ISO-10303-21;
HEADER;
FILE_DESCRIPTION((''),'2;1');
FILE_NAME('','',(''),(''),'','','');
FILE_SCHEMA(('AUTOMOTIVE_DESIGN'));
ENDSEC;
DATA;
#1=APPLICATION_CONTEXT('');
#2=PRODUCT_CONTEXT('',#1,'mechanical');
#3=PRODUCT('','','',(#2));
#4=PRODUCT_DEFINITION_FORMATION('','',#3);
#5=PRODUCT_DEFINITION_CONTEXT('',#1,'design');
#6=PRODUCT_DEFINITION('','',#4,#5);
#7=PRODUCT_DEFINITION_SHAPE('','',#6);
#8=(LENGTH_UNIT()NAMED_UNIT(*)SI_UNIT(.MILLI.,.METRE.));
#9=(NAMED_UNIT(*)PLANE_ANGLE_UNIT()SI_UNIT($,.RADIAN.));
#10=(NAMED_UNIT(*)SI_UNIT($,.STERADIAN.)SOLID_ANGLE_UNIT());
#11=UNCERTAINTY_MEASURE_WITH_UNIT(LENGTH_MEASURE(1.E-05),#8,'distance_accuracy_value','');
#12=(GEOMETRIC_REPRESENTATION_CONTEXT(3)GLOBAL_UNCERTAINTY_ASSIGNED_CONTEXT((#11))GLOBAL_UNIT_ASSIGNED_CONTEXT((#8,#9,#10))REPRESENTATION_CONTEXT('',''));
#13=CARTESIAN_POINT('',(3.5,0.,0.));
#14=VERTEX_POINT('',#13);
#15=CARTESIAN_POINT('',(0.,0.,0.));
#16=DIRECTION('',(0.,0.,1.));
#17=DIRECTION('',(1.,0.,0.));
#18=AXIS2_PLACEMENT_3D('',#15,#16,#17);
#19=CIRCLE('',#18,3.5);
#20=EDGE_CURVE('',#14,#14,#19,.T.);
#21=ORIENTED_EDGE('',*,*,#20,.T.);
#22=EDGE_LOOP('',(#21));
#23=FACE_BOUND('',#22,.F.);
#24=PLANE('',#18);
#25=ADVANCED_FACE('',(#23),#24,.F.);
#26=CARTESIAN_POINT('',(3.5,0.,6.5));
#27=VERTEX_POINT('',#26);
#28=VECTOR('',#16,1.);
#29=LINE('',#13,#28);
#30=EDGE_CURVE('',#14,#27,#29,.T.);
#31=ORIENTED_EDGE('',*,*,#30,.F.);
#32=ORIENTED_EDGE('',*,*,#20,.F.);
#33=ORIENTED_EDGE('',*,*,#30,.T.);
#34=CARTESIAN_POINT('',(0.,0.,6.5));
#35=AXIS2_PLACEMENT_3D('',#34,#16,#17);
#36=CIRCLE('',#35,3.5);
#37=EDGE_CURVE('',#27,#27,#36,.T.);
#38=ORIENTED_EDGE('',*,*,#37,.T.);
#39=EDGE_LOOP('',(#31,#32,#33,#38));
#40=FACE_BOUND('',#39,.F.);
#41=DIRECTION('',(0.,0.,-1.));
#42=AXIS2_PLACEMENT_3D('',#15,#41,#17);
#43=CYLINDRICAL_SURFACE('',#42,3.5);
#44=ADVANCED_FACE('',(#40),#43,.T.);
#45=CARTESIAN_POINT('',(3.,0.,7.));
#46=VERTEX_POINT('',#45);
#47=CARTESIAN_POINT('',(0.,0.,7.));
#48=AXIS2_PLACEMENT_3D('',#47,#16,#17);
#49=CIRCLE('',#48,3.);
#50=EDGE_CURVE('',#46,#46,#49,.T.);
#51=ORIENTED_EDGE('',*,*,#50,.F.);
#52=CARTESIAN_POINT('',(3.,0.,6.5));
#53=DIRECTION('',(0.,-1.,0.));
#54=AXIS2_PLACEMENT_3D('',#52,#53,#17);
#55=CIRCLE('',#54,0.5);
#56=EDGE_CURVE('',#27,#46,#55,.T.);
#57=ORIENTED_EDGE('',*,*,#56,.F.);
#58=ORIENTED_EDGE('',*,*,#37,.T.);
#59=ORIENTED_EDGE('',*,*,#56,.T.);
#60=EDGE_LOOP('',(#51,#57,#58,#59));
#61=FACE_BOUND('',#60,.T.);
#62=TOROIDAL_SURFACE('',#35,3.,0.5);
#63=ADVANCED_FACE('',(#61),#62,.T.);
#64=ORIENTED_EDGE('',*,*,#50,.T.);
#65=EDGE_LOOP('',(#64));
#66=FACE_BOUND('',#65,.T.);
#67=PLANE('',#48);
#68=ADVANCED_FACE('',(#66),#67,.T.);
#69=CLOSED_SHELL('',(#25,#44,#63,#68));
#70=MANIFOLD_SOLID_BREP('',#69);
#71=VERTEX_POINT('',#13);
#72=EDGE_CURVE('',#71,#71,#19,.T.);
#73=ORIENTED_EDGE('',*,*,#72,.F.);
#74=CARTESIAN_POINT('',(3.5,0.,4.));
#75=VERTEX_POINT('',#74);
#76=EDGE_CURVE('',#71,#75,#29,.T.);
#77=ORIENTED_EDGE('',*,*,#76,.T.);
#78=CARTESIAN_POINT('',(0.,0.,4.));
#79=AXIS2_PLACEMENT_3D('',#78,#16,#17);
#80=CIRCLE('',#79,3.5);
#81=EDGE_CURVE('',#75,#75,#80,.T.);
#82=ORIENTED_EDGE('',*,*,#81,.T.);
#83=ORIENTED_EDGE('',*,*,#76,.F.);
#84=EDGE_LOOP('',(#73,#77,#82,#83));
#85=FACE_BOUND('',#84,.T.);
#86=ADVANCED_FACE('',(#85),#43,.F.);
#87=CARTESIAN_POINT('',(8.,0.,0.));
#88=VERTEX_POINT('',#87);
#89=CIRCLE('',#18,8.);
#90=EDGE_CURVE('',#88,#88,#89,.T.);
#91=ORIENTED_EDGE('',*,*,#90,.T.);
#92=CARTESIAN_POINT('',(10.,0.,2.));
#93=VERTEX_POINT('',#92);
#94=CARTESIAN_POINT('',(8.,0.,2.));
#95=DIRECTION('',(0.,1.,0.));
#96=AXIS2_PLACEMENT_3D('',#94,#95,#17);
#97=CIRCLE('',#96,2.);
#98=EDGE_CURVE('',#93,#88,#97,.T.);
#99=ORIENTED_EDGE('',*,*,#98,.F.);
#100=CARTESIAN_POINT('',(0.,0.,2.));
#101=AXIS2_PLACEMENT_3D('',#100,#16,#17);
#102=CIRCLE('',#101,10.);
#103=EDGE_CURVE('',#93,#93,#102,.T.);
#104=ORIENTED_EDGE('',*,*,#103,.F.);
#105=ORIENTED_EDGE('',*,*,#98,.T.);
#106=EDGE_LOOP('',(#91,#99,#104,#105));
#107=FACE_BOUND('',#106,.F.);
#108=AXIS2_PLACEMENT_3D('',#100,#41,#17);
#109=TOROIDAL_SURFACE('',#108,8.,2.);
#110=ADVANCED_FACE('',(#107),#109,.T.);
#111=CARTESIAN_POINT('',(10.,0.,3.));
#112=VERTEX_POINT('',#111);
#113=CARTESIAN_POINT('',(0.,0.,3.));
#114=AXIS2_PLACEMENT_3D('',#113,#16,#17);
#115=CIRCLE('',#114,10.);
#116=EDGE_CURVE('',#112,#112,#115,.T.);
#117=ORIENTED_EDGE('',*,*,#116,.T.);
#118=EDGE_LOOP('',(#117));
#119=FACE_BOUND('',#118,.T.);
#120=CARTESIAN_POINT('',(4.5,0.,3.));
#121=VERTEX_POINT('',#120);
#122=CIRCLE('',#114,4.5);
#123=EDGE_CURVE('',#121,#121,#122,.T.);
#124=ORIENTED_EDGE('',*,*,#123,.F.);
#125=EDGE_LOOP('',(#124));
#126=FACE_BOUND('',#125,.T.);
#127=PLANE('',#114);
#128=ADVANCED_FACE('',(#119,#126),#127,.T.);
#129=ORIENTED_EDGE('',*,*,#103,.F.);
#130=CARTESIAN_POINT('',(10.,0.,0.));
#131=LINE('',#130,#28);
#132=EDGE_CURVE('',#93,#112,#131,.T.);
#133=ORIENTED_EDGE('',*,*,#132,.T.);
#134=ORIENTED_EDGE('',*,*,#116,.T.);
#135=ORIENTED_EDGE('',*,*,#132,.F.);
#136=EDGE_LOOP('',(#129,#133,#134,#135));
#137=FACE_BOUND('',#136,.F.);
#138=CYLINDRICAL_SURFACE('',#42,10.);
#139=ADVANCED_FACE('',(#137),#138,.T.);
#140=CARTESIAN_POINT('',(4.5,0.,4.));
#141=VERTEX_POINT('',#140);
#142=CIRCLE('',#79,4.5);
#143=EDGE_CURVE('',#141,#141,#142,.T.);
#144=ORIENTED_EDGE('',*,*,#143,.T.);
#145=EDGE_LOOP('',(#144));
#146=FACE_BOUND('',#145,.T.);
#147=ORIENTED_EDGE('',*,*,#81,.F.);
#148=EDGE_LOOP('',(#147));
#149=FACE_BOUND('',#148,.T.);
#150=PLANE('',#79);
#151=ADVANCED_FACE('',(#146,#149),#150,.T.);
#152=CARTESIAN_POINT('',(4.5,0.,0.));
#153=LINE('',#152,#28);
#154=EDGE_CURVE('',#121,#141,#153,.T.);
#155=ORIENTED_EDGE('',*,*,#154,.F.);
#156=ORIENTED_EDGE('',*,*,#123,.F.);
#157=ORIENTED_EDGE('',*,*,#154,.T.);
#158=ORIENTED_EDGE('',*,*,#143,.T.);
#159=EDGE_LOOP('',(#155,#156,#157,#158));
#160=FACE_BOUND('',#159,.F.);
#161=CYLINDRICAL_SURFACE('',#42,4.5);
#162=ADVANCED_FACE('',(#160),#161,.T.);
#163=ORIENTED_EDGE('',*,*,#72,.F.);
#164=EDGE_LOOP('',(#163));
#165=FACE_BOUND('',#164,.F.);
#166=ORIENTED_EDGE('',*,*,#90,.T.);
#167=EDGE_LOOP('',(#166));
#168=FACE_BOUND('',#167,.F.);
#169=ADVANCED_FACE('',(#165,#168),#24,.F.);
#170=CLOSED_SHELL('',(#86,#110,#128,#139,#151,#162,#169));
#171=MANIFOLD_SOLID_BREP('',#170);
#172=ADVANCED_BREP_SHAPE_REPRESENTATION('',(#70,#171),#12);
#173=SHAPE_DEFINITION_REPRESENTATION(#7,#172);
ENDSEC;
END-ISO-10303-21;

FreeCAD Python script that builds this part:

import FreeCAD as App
import Part
import Sketcher

V = App.Vector


def edges_at(feature, points):
    """Names of the edges that pass closest to the given points."""
    edges = feature.Shape.Edges
    near = lambda p: min(range(len(edges)), key=lambda i: edges[i].distToShape(Part.Vertex(*p))[0])
    return sorted({f"Edge{near(p) + 1}" for p in points})

doc = App.newDocument("Part")
params = doc.addObject("Spreadsheet::Sheet", "Params")
for row, (alias, value) in enumerate([
    ("sketch1_diameter", "7 mm"),
    ("pad1_length", "7 mm"),
    ("fillet_radius", "0.5 mm"),
    ("sketch2_diameter", "9 mm"),
    ("sketch2_diameter2", "7 mm"),
    ("pad2_length", "4 mm"),
    ("sketch3_diameter", "20 mm"),
    ("sketch3_diameter2", "9 mm"),
    ("pad3_length", "3 mm"),
    ("fillet2_radius", "2 mm"),
], start=1):
    params.set(f"A{row}", alias)
    params.set(f"B{row}", "=" + value)
    params.setAlias(f"B{row}", alias)

body = doc.addObject("PartDesign::Body", "Body")

# Sketch on XY plane
sketch1 = body.newObject("Sketcher::SketchObject", "Sketch")
sketch1.AttachmentSupport = (doc.getObject("XY_Plane"), [""])
sketch1.MapMode = "FlatFace"
sketch1.addGeometry(Part.Circle(V(0, 0, 0), V(0, 0, 1), 3.5), False)
sketch1.addConstraint([
    Sketcher.Constraint("Coincident", 0, 3, -1, 1),
    Sketcher.Constraint("Diameter", 0, 7.0),
])
sketch1.setExpression("Constraints[1]", "Params.sketch1_diameter")
pad1 = body.newObject("PartDesign::Pad", "Pad")
pad1.Profile = sketch1
pad1.setExpression("Length", "Params.pad1_length")
doc.recompute()

fillet = body.newObject("PartDesign::Fillet", "Fillet")
fillet.Base = (pad1, edges_at(pad1, [(-3.5, 0, 7)]))
fillet.setExpression("Radius", "Params.fillet_radius")
body2 = doc.addObject("PartDesign::Body", "Body001")

# Sketch on XY plane
sketch2 = body2.newObject("Sketcher::SketchObject", "Sketch001")
sketch2.AttachmentSupport = (doc.getObject("XY_Plane001"), [""])
sketch2.MapMode = "FlatFace"
sketch2.addGeometry([
    Part.Circle(V(0, 0, 0), V(0, 0, 1), 4.5),
    Part.Circle(V(0, 0, 0), V(0, 0, 1), 3.5),
], False)
sketch2.addConstraint([
    Sketcher.Constraint("Coincident", 0, 3, -1, 1),
    Sketcher.Constraint("Coincident", 1, 3, -1, 1),
    Sketcher.Constraint("Diameter", 0, 9.0),
    Sketcher.Constraint("Diameter", 1, 7.0),
])
sketch2.setExpression("Constraints[2]", "Params.sketch2_diameter")
sketch2.setExpression("Constraints[3]", "Params.sketch2_diameter2")
pad2 = body2.newObject("PartDesign::Pad", "Pad001")
pad2.Profile = sketch2
pad2.setExpression("Length", "Params.pad2_length")

# Sketch on XY plane
sketch3 = body2.newObject("Sketcher::SketchObject", "Sketch002")
sketch3.AttachmentSupport = (doc.getObject("XY_Plane001"), [""])
sketch3.MapMode = "FlatFace"
sketch3.addGeometry([
    Part.Circle(V(0, 0, 0), V(0, 0, 1), 10),
    Part.Circle(V(0, 0, 0), V(0, 0, 1), 4.5),
], False)
sketch3.addConstraint([
    Sketcher.Constraint("Coincident", 0, 3, -1, 1),
    Sketcher.Constraint("Coincident", 1, 3, -1, 1),
    Sketcher.Constraint("Diameter", 0, 20.0),
    Sketcher.Constraint("Diameter", 1, 9.0),
])
sketch3.setExpression("Constraints[2]", "Params.sketch3_diameter")
sketch3.setExpression("Constraints[3]", "Params.sketch3_diameter2")
pad3 = body2.newObject("PartDesign::Pad", "Pad002")
pad3.Profile = sketch3
pad3.setExpression("Length", "Params.pad3_length")
doc.recompute()

fillet2 = body2.newObject("PartDesign::Fillet", "Fillet001")
fillet2.Base = (pad3, edges_at(pad3, [(-10, 0, 0)]))
fillet2.setExpression("Radius", "Params.fillet2_radius")

doc.recompute()
